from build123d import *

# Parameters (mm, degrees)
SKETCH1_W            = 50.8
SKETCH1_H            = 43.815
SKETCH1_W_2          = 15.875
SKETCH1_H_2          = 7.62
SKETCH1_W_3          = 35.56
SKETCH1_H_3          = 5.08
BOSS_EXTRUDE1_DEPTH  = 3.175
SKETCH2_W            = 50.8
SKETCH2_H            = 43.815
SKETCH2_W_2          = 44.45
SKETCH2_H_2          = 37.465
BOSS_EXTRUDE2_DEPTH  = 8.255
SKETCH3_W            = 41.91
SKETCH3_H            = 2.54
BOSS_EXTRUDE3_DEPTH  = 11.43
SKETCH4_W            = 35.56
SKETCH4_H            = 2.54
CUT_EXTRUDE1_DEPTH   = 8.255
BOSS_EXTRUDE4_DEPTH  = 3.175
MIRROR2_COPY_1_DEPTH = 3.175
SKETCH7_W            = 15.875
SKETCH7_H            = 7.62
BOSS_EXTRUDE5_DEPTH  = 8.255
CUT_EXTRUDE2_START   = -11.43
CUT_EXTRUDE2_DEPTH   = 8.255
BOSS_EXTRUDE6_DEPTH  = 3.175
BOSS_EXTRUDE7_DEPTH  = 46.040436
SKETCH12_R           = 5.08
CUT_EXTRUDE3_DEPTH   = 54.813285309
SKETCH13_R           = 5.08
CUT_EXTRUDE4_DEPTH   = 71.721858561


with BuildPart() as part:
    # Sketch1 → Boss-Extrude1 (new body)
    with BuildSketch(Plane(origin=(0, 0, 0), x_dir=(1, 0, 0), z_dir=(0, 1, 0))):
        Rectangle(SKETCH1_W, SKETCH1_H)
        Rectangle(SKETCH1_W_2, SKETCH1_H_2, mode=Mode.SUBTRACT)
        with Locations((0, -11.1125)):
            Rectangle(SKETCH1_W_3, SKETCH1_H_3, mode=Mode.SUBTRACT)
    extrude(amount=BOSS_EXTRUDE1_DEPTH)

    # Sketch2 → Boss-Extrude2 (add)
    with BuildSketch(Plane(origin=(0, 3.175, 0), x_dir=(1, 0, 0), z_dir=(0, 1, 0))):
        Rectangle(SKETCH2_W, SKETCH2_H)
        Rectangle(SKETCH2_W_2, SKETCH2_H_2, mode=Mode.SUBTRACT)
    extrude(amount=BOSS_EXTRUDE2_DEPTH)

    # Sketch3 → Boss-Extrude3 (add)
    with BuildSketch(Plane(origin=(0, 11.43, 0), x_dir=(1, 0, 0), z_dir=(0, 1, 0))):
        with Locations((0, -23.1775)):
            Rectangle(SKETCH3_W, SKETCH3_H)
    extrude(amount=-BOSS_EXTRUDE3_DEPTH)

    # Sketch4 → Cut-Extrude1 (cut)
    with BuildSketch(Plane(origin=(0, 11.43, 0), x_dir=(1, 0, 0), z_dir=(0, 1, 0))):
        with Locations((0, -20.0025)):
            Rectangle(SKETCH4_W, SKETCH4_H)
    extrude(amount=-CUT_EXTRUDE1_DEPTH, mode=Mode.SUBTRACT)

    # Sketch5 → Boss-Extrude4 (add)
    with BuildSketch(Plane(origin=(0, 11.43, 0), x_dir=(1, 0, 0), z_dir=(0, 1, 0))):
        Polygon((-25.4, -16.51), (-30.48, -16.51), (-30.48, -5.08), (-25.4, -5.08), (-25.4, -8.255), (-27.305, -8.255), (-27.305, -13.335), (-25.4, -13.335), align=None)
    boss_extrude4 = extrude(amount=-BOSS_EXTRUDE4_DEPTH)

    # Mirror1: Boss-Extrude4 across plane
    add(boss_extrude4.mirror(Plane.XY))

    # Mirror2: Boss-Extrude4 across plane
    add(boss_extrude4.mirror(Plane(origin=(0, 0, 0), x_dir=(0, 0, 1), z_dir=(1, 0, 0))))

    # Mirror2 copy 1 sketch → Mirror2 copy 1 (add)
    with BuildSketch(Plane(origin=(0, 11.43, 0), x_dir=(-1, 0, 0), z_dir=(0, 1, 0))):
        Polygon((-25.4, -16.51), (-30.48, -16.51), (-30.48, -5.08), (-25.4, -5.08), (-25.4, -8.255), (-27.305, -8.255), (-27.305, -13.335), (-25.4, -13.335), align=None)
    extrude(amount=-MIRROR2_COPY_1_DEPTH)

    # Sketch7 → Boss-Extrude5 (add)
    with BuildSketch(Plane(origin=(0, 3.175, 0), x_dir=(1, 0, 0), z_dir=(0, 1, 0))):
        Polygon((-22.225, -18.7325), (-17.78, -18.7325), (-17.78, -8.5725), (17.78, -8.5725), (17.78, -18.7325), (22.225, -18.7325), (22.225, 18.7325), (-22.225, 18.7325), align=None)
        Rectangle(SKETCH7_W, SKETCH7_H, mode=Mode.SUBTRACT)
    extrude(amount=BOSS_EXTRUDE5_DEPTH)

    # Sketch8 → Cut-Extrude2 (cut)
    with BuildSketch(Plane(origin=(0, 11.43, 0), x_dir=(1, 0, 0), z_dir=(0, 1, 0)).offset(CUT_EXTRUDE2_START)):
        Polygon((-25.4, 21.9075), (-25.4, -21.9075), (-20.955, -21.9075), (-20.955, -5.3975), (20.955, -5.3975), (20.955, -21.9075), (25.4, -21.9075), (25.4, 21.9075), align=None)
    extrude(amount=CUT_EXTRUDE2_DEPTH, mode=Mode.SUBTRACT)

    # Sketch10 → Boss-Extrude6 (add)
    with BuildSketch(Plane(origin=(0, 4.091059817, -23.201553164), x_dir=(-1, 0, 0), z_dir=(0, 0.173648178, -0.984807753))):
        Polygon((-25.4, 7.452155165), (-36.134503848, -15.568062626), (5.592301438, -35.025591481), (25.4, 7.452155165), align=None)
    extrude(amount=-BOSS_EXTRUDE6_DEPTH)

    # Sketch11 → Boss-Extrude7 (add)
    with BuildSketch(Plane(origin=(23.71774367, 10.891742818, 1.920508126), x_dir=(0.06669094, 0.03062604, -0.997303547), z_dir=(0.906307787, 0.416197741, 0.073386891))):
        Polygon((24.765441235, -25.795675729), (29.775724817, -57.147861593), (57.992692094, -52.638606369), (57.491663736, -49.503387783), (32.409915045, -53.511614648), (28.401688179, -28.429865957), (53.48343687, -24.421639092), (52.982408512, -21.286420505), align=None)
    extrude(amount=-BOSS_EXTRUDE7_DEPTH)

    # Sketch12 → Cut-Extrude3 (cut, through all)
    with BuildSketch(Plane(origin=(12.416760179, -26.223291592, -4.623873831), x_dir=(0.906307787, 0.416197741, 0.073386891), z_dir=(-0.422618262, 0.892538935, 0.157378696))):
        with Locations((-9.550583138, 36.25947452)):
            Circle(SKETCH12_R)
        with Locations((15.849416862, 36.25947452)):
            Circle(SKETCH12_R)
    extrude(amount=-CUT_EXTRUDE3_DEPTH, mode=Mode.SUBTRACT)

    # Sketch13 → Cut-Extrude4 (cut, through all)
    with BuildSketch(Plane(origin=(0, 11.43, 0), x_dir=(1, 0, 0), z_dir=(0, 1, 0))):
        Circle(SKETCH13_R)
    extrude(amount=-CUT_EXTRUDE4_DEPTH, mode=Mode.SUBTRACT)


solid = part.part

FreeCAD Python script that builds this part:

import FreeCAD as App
import Part
import Sketcher
from FreeCAD import Vector
Q = App.Units.Quantity

doc = App.newDocument("Part")
body = doc.addObject("PartDesign::Body", "Body")

# Sketch on XZ plane
sketch1 = body.newObject("Sketcher::SketchObject", "Sketch")
sketch1.AttachmentSupport = (doc.getObject("XZ_Plane"), [""])
sketch1.MapMode = "FlatFace"
sketch1.addGeometry([
    Part.LineSegment(Vector(-25.4, -21.9075, 0), Vector(-25.4, 21.9075, 0)),  # 0
    Part.LineSegment(Vector(-25.4, 21.9075, 0), Vector(25.4, 21.9075, 0)),  # 1
    Part.LineSegment(Vector(25.4, 21.9075, 0), Vector(25.4, -21.9075, 0)),  # 2
    Part.LineSegment(Vector(25.4, -21.9075, 0), Vector(-25.4, -21.9075, 0)),  # 3
    Part.LineSegment(Vector(17.78, 13.6525, 0), Vector(-17.78, 13.6525, 0)),  # 4
    Part.LineSegment(Vector(-17.78, 13.6525, 0), Vector(-17.78, 8.5725, 0)),  # 5
    Part.LineSegment(Vector(-17.78, 8.5725, 0), Vector(17.78, 8.5725, 0)),  # 6
    Part.LineSegment(Vector(17.78, 8.5725, 0), Vector(17.78, 13.6525, 0)),  # 7
    Part.LineSegment(Vector(7.9375, 3.81, 0), Vector(-7.9375, 3.81, 0)),  # 8
    Part.LineSegment(Vector(-7.9375, 3.81, 0), Vector(-7.9375, -3.81, 0)),  # 9
    Part.LineSegment(Vector(-7.9375, -3.81, 0), Vector(7.9375, -3.81, 0)),  # 10
    Part.LineSegment(Vector(7.9375, -3.81, 0), Vector(7.9375, 3.81, 0)),  # 11
], False)
sketch1.addConstraint([
    Sketcher.Constraint("Coincident", 0, 2, 1, 1),
    Sketcher.Constraint("Coincident", 1, 2, 2, 1),
    Sketcher.Constraint("Coincident", 2, 2, 3, 1),
    Sketcher.Constraint("Coincident", 3, 2, 0, 1),
    Sketcher.Constraint("Coincident", 4, 2, 5, 1),
    Sketcher.Constraint("Coincident", 5, 2, 6, 1),
    Sketcher.Constraint("Coincident", 6, 2, 7, 1),
    Sketcher.Constraint("Coincident", 7, 2, 4, 1),
    Sketcher.Constraint("Coincident", 8, 2, 9, 1),
    Sketcher.Constraint("Coincident", 9, 2, 10, 1),
    Sketcher.Constraint("Coincident", 10, 2, 11, 1),
    Sketcher.Constraint("Coincident", 11, 2, 8, 1),
    Sketcher.Constraint("Vertical", 0),
    Sketcher.Constraint("Horizontal", 1),
    Sketcher.Constraint("Vertical", 2),
    Sketcher.Constraint("Horizontal", 3),
    Sketcher.Constraint("Horizontal", 4),
    Sketcher.Constraint("Vertical", 5),
    Sketcher.Constraint("Horizontal", 6),
    Sketcher.Constraint("Vertical", 7),
    Sketcher.Constraint("Horizontal", 8),
    Sketcher.Constraint("Vertical", 9),
    Sketcher.Constraint("Horizontal", 10),
    Sketcher.Constraint("Vertical", 11),
    Sketcher.Constraint("Symmetric", 0, 2, 2, 2, -1, 1),
    Sketcher.Constraint("Symmetric", 8, 2, 10, 2, -1, 1),
    Sketcher.Constraint("DistanceX", 1, 1, 1, 2, Q("2 in")),
    Sketcher.Constraint("DistanceX", 4, 2, 4, 1, Q("1.4 in")),
    Sketcher.Constraint("DistanceY", 5, 2, 5, 1, Q("0.2 in")),
    Sketcher.Constraint("DistanceY", 9, 2, 9, 1, Q("0.3 in")),
    Sketcher.Constraint("DistanceX", 4, 2, -1, 1, Q("0.7 in")),
    Sketcher.Constraint("DistanceY", 3, 2, 4, 2, Q("1.4 in")),
    Sketcher.Constraint("DistanceX", 8, 2, 8, 1, Q("0.625 in")),
    Sketcher.Constraint("DistanceY", 0, 1, 0, 2, Q("1.725 in")),
])
pad1 = body.newObject("PartDesign::Pad", "Pad")
pad1.Profile = sketch1
pad1.Length = Q("0.125 in")
pad1.Reversed = True

# Sketch on XZ plane
sketch2 = body.newObject("Sketcher::SketchObject", "Sketch001")
sketch2.AttachmentSupport = (doc.getObject("XZ_Plane"), [""])
sketch2.MapMode = "FlatFace"
sketch2.AttachmentOffset = App.Placement(Vector(0, 0, -0.125 * 25.4), App.Rotation())
sketch2.addGeometry([
    Part.LineSegment(Vector(-25.4, -21.9075, 0), Vector(-25.4, 21.9075, 0)),  # 0
    Part.LineSegment(Vector(-25.4, 21.9075, 0), Vector(25.4, 21.9075, 0)),  # 1
    Part.LineSegment(Vector(25.4, 21.9075, 0), Vector(25.4, -21.9075, 0)),  # 2
    Part.LineSegment(Vector(25.4, -21.9075, 0), Vector(-25.4, -21.9075, 0)),  # 3
    Part.LineSegment(Vector(22.225, 18.7325, 0), Vector(-22.225, 18.7325, 0)),  # 4
    Part.LineSegment(Vector(-22.225, 18.7325, 0), Vector(-22.225, -18.7325, 0)),  # 5
    Part.LineSegment(Vector(-22.225, -18.7325, 0), Vector(22.225, -18.7325, 0)),  # 6
    Part.LineSegment(Vector(22.225, -18.7325, 0), Vector(22.225, 18.7325, 0)),  # 7
], False)
sketch2.addConstraint([
    Sketcher.Constraint("Coincident", 0, 2, 1, 1),
    Sketcher.Constraint("Coincident", 1, 2, 2, 1),
    Sketcher.Constraint("Coincident", 2, 2, 3, 1),
    Sketcher.Constraint("Coincident", 3, 2, 0, 1),
    Sketcher.Constraint("Coincident", 4, 2, 5, 1),
    Sketcher.Constraint("Coincident", 5, 2, 6, 1),
    Sketcher.Constraint("Coincident", 6, 2, 7, 1),
    Sketcher.Constraint("Coincident", 7, 2, 4, 1),
    Sketcher.Constraint("Vertical", 0),
    Sketcher.Constraint("Horizontal", 1),
    Sketcher.Constraint("Vertical", 2),
    Sketcher.Constraint("Horizontal", 3),
    Sketcher.Constraint("Horizontal", 4),
    Sketcher.Constraint("Vertical", 5),
    Sketcher.Constraint("Horizontal", 6),
    Sketcher.Constraint("Vertical", 7),
    Sketcher.Constraint("Symmetric", 0, 2, 2, 2, -1, 1),
    Sketcher.Constraint("Symmetric", 4, 2, 6, 2, -1, 1),
    Sketcher.Constraint("DistanceX", 1, 1, 1, 2, Q("2 in")),
    Sketcher.Constraint("DistanceX", 4, 2, 4, 1, Q("1.75 in")),
    Sketcher.Constraint("DistanceY", 3, 2, 4, 2, Q("1.6 in")),
    Sketcher.Constraint("DistanceY", 0, 1, 0, 2, Q("1.725 in")),
])
pad2 = body.newObject("PartDesign::Pad", "Pad001")
pad2.Profile = sketch2
pad2.Length = Q("0.325 in")
pad2.Reversed = True

# Sketch on XZ plane
sketch3 = body.newObject("Sketcher::SketchObject", "Sketch002")
sketch3.AttachmentSupport = (doc.getObject("XZ_Plane"), [""])
sketch3.MapMode = "FlatFace"
sketch3.AttachmentOffset = App.Placement(Vector(0, 0, -0.45 * 25.4), App.Rotation())
sketch3.addGeometry([
    Part.LineSegment(Vector(-20.955, 21.9075, 0), Vector(-20.955, 24.4475, 0)),
    Part.LineSegment(Vector(-20.955, 24.4475, 0), Vector(20.955, 24.4475, 0)),
    Part.LineSegment(Vector(20.955, 24.4475, 0), Vector(20.955, 21.9075, 0)),
    Part.LineSegment(Vector(20.955, 21.9075, 0), Vector(-20.955, 21.9075, 0)),
], False)
sketch3.addConstraint([
    Sketcher.Constraint("Coincident", 0, 2, 1, 1),
    Sketcher.Constraint("Coincident", 1, 2, 2, 1),
    Sketcher.Constraint("Coincident", 2, 2, 3, 1),
    Sketcher.Constraint("Coincident", 3, 2, 0, 1),
    Sketcher.Constraint("Vertical", 0),
    Sketcher.Constraint("Horizontal", 1),
    Sketcher.Constraint("Vertical", 2),
    Sketcher.Constraint("Horizontal", 3),
    Sketcher.Constraint("DistanceY", 0, 1, 0, 2, Q("0.1 in")),
    Sketcher.Constraint("DistanceX", 1, 1, 1, 2, Q("1.65 in")),
    Sketcher.Constraint("DistanceX", 0, 2, -1, 1, Q("0.825 in")),
    Sketcher.Constraint("DistanceY", -1, 1, 0, 2, Q("0.9625 in")),
])
pad3 = body.newObject("PartDesign::Pad", "Pad002")
pad3.Profile = sketch3
pad3.Length = Q("0.45 in")

# Sketch on XZ plane
sketch4 = body.newObject("Sketcher::SketchObject", "Sketch003")
sketch4.AttachmentSupport = (doc.getObject("XZ_Plane"), [""])
sketch4.MapMode = "FlatFace"
sketch4.AttachmentOffset = App.Placement(Vector(0, 0, -0.45 * 25.4), App.Rotation())
sketch4.addGeometry([
    Part.LineSegment(Vector(-17.78, 18.7325, 0), Vector(-17.78, 21.2725, 0)),
    Part.LineSegment(Vector(-17.78, 21.2725, 0), Vector(17.78, 21.2725, 0)),
    Part.LineSegment(Vector(17.78, 21.2725, 0), Vector(17.78, 18.7325, 0)),
    Part.LineSegment(Vector(17.78, 18.7325, 0), Vector(-17.78, 18.7325, 0)),
], False)
sketch4.addConstraint([
    Sketcher.Constraint("Coincident", 0, 2, 1, 1),
    Sketcher.Constraint("Coincident", 1, 2, 2, 1),
    Sketcher.Constraint("Coincident", 2, 2, 3, 1),
    Sketcher.Constraint("Coincident", 3, 2, 0, 1),
    Sketcher.Constraint("Vertical", 0),
    Sketcher.Constraint("Horizontal", 1),
    Sketcher.Constraint("Vertical", 2),
    Sketcher.Constraint("Horizontal", 3),
    Sketcher.Constraint("DistanceX", 1, 1, 1, 2, Q("1.4 in")),
    Sketcher.Constraint("DistanceY", 0, 1, 0, 2, Q("0.1 in")),
    Sketcher.Constraint("DistanceX", 0, 2, -1, 1, Q("0.7 in")),
    Sketcher.Constraint("DistanceY", -1, 1, 0, 2, Q("0.8375 in")),
])
pocket1 = body.newObject("PartDesign::Pocket", "Pocket")
pocket1.Profile = sketch4
pocket1.Length = Q("0.325 in")
pocket1.Reversed = True

# Sketch on XZ plane
sketch5 = body.newObject("Sketcher::SketchObject", "Sketch004")
sketch5.AttachmentSupport = (doc.getObject("XZ_Plane"), [""])
sketch5.MapMode = "FlatFace"
sketch5.AttachmentOffset = App.Placement(Vector(0, 0, -0.45 * 25.4), App.Rotation())
sketch5.addGeometry([
    Part.LineSegment(Vector(-30.48, 16.51, 0), Vector(-25.4, 16.51, 0)),  # 0
    Part.LineSegment(Vector(-25.4, 16.51, 0), Vector(-25.4, 13.335, 0)),  # 1
    Part.LineSegment(Vector(-25.4, 13.335, 0), Vector(-27.305, 13.335, 0)),  # 2
    Part.LineSegment(Vector(-27.305, 13.335, 0), Vector(-27.305, 8.255, 0)),  # 3
    Part.LineSegment(Vector(-27.305, 8.255, 0), Vector(-25.4, 8.255, 0)),  # 4
    Part.LineSegment(Vector(-25.4, 8.255, 0), Vector(-25.4, 5.08, 0)),  # 5
    Part.LineSegment(Vector(-25.4, 5.08, 0), Vector(-30.48, 5.08, 0)),  # 6
    Part.LineSegment(Vector(-30.48, 5.08, 0), Vector(-30.48, 16.51, 0)),  # 7
], False)
sketch5.addConstraint([
    Sketcher.Constraint("Coincident", 0, 2, 1, 1),
    Sketcher.Constraint("Coincident", 1, 2, 2, 1),
    Sketcher.Constraint("Coincident", 2, 2, 3, 1),
    Sketcher.Constraint("Coincident", 3, 2, 4, 1),
    Sketcher.Constraint("Coincident", 4, 2, 5, 1),
    Sketcher.Constraint("Coincident", 5, 2, 6, 1),
    Sketcher.Constraint("Coincident", 6, 2, 7, 1),
    Sketcher.Constraint("Coincident", 7, 2, 0, 1),
    Sketcher.Constraint("Horizontal", 0),
    Sketcher.Constraint("Vertical", 1),
    Sketcher.Constraint("Horizontal", 2),
    Sketcher.Constraint("Vertical", 3),
    Sketcher.Constraint("Horizontal", 4),
    Sketcher.Constraint("Vertical", 5),
    Sketcher.Constraint("Horizontal", 6),
    Sketcher.Constraint("Vertical", 7),
    Sketcher.Constraint("Vertical", 1, 2, 4, 2),
    Sketcher.Constraint("Equal", 6, 3),
    Sketcher.Constraint("Equal", 1, 5),
    Sketcher.Constraint("DistanceX", 0, 1, 0, 2, Q("0.2 in")),
    Sketcher.Constraint("DistanceX", 0, 2, -1, 1, Q("1 in")),
    Sketcher.Constraint("DistanceY", 7, 1, 7, 2, Q("0.45 in")),
    Sketcher.Constraint("DistanceY", -1, 1, 5, 2, Q("0.2 in")),
    Sketcher.Constraint("DistanceX", 2, 2, 2, 1, Q("0.075 in")),
])
pad4 = body.newObject("PartDesign::Pad", "Pad003")
pad4.Profile = sketch5
pad4.Length = Q("0.125 in")
doc.recompute()

mirrored = body.newObject("PartDesign::Mirrored", "Mirrored")
mirrored.Originals = [pad4]
mirrored.MirrorPlane = (doc.getObject("XY_Plane"), [""])
body.Tip = mirrored
doc.recompute()

mirrored2 = body.newObject("PartDesign::Mirrored", "Mirrored001")
mirrored2.Originals = [pad4]
mirrored2.MirrorPlane = (doc.getObject("YZ_Plane"), [""])
body.Tip = mirrored2

# Sketch on XZ plane
sketch6 = body.newObject("Sketcher::SketchObject", "Sketch005")
sketch6.AttachmentSupport = (doc.getObject("XZ_Plane"), [""])
sketch6.MapMode = "FlatFace"
sketch6.AttachmentOffset = App.Placement(Vector(0, 0, -0.45 * 25.4), App.Rotation())
sketch6.addGeometry([
    Part.LineSegment(Vector(30.48, -16.51, 0), Vector(25.4, -16.51, 0)),  # 0
    Part.LineSegment(Vector(25.4, -16.51, 0), Vector(25.4, -13.335, 0)),  # 1
    Part.LineSegment(Vector(25.4, -13.335, 0), Vector(27.305, -13.335, 0)),  # 2
    Part.LineSegment(Vector(27.305, -13.335, 0), Vector(27.305, -8.255, 0)),  # 3
    Part.LineSegment(Vector(27.305, -8.255, 0), Vector(25.4, -8.255, 0)),  # 4
    Part.LineSegment(Vector(25.4, -8.255, 0), Vector(25.4, -5.08, 0)),  # 5
    Part.LineSegment(Vector(25.4, -5.08, 0), Vector(30.48, -5.08, 0)),  # 6
    Part.LineSegment(Vector(30.48, -5.08, 0), Vector(30.48, -16.51, 0)),  # 7
], False)
sketch6.addConstraint([
    Sketcher.Constraint("Coincident", 0, 2, 1, 1),
    Sketcher.Constraint("Coincident", 1, 2, 2, 1),
    Sketcher.Constraint("Coincident", 2, 2, 3, 1),
    Sketcher.Constraint("Coincident", 3, 2, 4, 1),
    Sketcher.Constraint("Coincident", 4, 2, 5, 1),
    Sketcher.Constraint("Coincident", 5, 2, 6, 1),
    Sketcher.Constraint("Coincident", 6, 2, 7, 1),
    Sketcher.Constraint("Coincident", 7, 2, 0, 1),
    Sketcher.Constraint("Horizontal", 0),
    Sketcher.Constraint("Vertical", 1),
    Sketcher.Constraint("Horizontal", 2),
    Sketcher.Constraint("Vertical", 3),
    Sketcher.Constraint("Horizontal", 4),
    Sketcher.Constraint("Vertical", 5),
    Sketcher.Constraint("Horizontal", 6),
    Sketcher.Constraint("Vertical", 7),
    Sketcher.Constraint("Vertical", 1, 2, 4, 2),
    Sketcher.Constraint("Equal", 6, 3),
    Sketcher.Constraint("Equal", 1, 5),
    Sketcher.Constraint("DistanceX", 0, 2, 0, 1, Q("0.2 in")),
    Sketcher.Constraint("DistanceX", -1, 1, 0, 2, Q("1 in")),
    Sketcher.Constraint("DistanceY", 7, 2, 7, 1, Q("0.45 in")),
    Sketcher.Constraint("DistanceY", 5, 2, -1, 1, Q("0.2 in")),
    Sketcher.Constraint("DistanceX", 2, 1, 2, 2, Q("0.075 in")),
])
pad5 = body.newObject("PartDesign::Pad", "Pad004")
pad5.Profile = sketch6
pad5.Length = Q("0.125 in")

# Sketch on XZ plane
sketch7 = body.newObject("Sketcher::SketchObject", "Sketch006")
sketch7.AttachmentSupport = (doc.getObject("XZ_Plane"), [""])
sketch7.MapMode = "FlatFace"
sketch7.AttachmentOffset = App.Placement(Vector(0, 0, -0.125 * 25.4), App.Rotation())
sketch7.addGeometry([
    Part.LineSegment(Vector(-22.225, 18.7325, 0), Vector(-17.78, 18.7325, 0)),  # 0
    Part.LineSegment(Vector(-17.78, 18.7325, 0), Vector(-17.78, 8.5725, 0)),  # 1
    Part.LineSegment(Vector(-17.78, 8.5725, 0), Vector(17.78, 8.5725, 0)),  # 2
    Part.LineSegment(Vector(17.78, 8.5725, 0), Vector(17.78, 18.7325, 0)),  # 3
    Part.LineSegment(Vector(17.78, 18.7325, 0), Vector(22.225, 18.7325, 0)),  # 4
    Part.LineSegment(Vector(22.225, 18.7325, 0), Vector(22.225, -18.7325, 0)),  # 5
    Part.LineSegment(Vector(22.225, -18.7325, 0), Vector(-22.225, -18.7325, 0)),  # 6
    Part.LineSegment(Vector(-22.225, -18.7325, 0), Vector(-22.225, 18.7325, 0)),  # 7
    Part.LineSegment(Vector(7.9375, 3.81, 0), Vector(-7.9375, 3.81, 0)),  # 8
    Part.LineSegment(Vector(-7.9375, 3.81, 0), Vector(-7.9375, -3.81, 0)),  # 9
    Part.LineSegment(Vector(-7.9375, -3.81, 0), Vector(7.9375, -3.81, 0)),  # 10
    Part.LineSegment(Vector(7.9375, -3.81, 0), Vector(7.9375, 3.81, 0)),  # 11
], False)
sketch7.addConstraint([
    Sketcher.Constraint("Coincident", 0, 2, 1, 1),
    Sketcher.Constraint("Coincident", 1, 2, 2, 1),
    Sketcher.Constraint("Coincident", 2, 2, 3, 1),
    Sketcher.Constraint("Coincident", 3, 2, 4, 1),
    Sketcher.Constraint("Coincident", 4, 2, 5, 1),
    Sketcher.Constraint("Coincident", 5, 2, 6, 1),
    Sketcher.Constraint("Coincident", 6, 2, 7, 1),
    Sketcher.Constraint("Coincident", 7, 2, 0, 1),
    Sketcher.Constraint("Coincident", 8, 2, 9, 1),
    Sketcher.Constraint("Coincident", 9, 2, 10, 1),
    Sketcher.Constraint("Coincident", 10, 2, 11, 1),
    Sketcher.Constraint("Coincident", 11, 2, 8, 1),
    Sketcher.Constraint("Horizontal", 0),
    Sketcher.Constraint("Vertical", 1),
    Sketcher.Constraint("Horizontal", 2),
    Sketcher.Constraint("Vertical", 3),
    Sketcher.Constraint("Horizontal", 4),
    Sketcher.Constraint("Vertical", 5),
    Sketcher.Constraint("Horizontal", 6),
    Sketcher.Constraint("Vertical", 7),
    Sketcher.Constraint("Horizontal", 8),
    Sketcher.Constraint("Vertical", 9),
    Sketcher.Constraint("Horizontal", 10),
    Sketcher.Constraint("Vertical", 11),
    Sketcher.Constraint("Symmetric", 4, 2, 6, 2, -1, 1),
    Sketcher.Constraint("Symmetric", 8, 2, 10, 2, -1, 1),
    Sketcher.Constraint("Symmetric", 0, 2, 3, 2, -2),
    Sketcher.Constraint("DistanceX", 2, 1, 2, 2, Q("1.4 in")),
    Sketcher.Constraint("DistanceY", 1, 2, 1, 1, Q("0.4 in")),
    Sketcher.Constraint("DistanceY", 9, 2, 9, 1, Q("0.3 in")),
    Sketcher.Constraint("DistanceX", 6, 2, 6, 1, Q("1.75 in")),
    Sketcher.Constraint("DistanceX", 8, 2, 8, 1, Q("0.625 in")),
    Sketcher.Constraint("DistanceY", 5, 2, 5, 1, Q("1.475 in")),
])
pad6 = body.newObject("PartDesign::Pad", "Pad005")
pad6.Profile = sketch7
pad6.Length = Q("0.325 in")
pad6.Reversed = True

# Sketch on XZ plane
sketch8 = body.newObject("Sketcher::SketchObject", "Sketch007")
sketch8.AttachmentSupport = (doc.getObject("XZ_Plane"), [""])
sketch8.MapMode = "FlatFace"
sketch8.addGeometry([
    Part.LineSegment(Vector(-25.4, -21.9075, 0), Vector(-25.4, 21.9075, 0)),  # 0
    Part.LineSegment(Vector(-25.4, 21.9075, 0), Vector(-20.955, 21.9075, 0)),  # 1
    Part.LineSegment(Vector(-20.955, 21.9075, 0), Vector(-20.955, 5.3975, 0)),  # 2
    Part.LineSegment(Vector(-20.955, 5.3975, 0), Vector(20.955, 5.3975, 0)),  # 3
    Part.LineSegment(Vector(20.955, 5.3975, 0), Vector(20.955, 21.9075, 0)),  # 4
    Part.LineSegment(Vector(20.955, 21.9075, 0), Vector(25.4, 21.9075, 0)),  # 5
    Part.LineSegment(Vector(25.4, 21.9075, 0), Vector(25.4, -21.9075, 0)),  # 6
    Part.LineSegment(Vector(25.4, -21.9075, 0), Vector(-25.4, -21.9075, 0)),  # 7
], False)
sketch8.addConstraint([
    Sketcher.Constraint("Coincident", 0, 2, 1, 1),
    Sketcher.Constraint("Coincident", 1, 2, 2, 1),
    Sketcher.Constraint("Coincident", 2, 2, 3, 1),
    Sketcher.Constraint("Coincident", 3, 2, 4, 1),
    Sketcher.Constraint("Coincident", 4, 2, 5, 1),
    Sketcher.Constraint("Coincident", 5, 2, 6, 1),
    Sketcher.Constraint("Coincident", 6, 2, 7, 1),
    Sketcher.Constraint("Coincident", 7, 2, 0, 1),
    Sketcher.Constraint("Vertical", 0),
    Sketcher.Constraint("Horizontal", 1),
    Sketcher.Constraint("Vertical", 2),
    Sketcher.Constraint("Horizontal", 3),
    Sketcher.Constraint("Vertical", 4),
    Sketcher.Constraint("Horizontal", 5),
    Sketcher.Constraint("Vertical", 6),
    Sketcher.Constraint("Horizontal", 7),
    Sketcher.Constraint("Symmetric", 0, 2, 6, 2, -1, 1),
    Sketcher.Constraint("Symmetric", 1, 2, 4, 2, -2),
    Sketcher.Constraint("DistanceX", 7, 2, 7, 1, Q("2 in")),
    Sketcher.Constraint("DistanceX", 3, 1, 3, 2, Q("1.65 in")),
    Sketcher.Constraint("DistanceY", 2, 2, 2, 1, Q("0.65 in")),
    Sketcher.Constraint("DistanceY", 0, 1, 0, 2, Q("1.725 in")),
])
pocket2 = body.newObject("PartDesign::Pocket", "Pocket001")
pocket2.Profile = sketch8
pocket2.Length = Q("0.325 in")

# Sketch on an angled plane
sketch9 = body.newObject("Sketcher::SketchObject", "Sketch008")
sketch9.Placement = App.Placement(Vector(0, 4.09106, -23.201553), App.Rotation(Vector(-1, 0, 0), Vector(0, 0.984807753, 0.173648178), Vector(0, 0.173648178, -0.984807753), "ZXY"))
sketch9.addGeometry([
    Part.LineSegment(Vector(-25.4, 7.452155, 0), Vector(-36.134504, -15.568063, 0)),
    Part.LineSegment(Vector(-36.134504, -15.568063, 0), Vector(5.592301, -35.025591, 0)),
    Part.LineSegment(Vector(5.592301, -35.025591, 0), Vector(25.4, 7.452155, 0)),
    Part.LineSegment(Vector(25.4, 7.452155, 0), Vector(-25.4, 7.452155, 0)),
], False)
sketch9.addConstraint([
    Sketcher.Constraint("Coincident", 0, 2, 1, 1),
    Sketcher.Constraint("Coincident", 1, 2, 2, 1),
    Sketcher.Constraint("Coincident", 2, 2, 3, 1),
    Sketcher.Constraint("Coincident", 3, 2, 0, 1),
    Sketcher.Constraint("Horizontal", 3),
    Sketcher.Constraint("Perpendicular", 0, 1),
    Sketcher.Constraint("Perpendicular", 1, 2),
    Sketcher.Constraint("DistanceX", 3, 2, 3, 1, Q("2 in")),
    Sketcher.Constraint("Distance", 0, Q("1 in")),
    Sketcher.Constraint("DistanceX", -1, 1, 2, 2, Q("1 in")),
    Sketcher.Constraint("Angle", 0, Q("-115 deg")),
    Sketcher.Constraint("DistanceY", 1, 2, -1, 1, 35.025591),
])
pad7 = body.newObject("PartDesign::Pad", "Pad006")
pad7.Profile = sketch9
pad7.Length = Q("0.125 in")
pad7.Reversed = True

# Sketch on an angled plane
sketch10 = body.newObject("Sketcher::SketchObject", "Sketch009")
sketch10.Placement = App.Placement(Vector(23.717744, 10.891743, 1.920508), App.Rotation(Vector(0.06669094, 0.03062604, -0.997303547), Vector(-0.417323033, 0.908758211, 0), Vector(0.906307787, 0.416197741, 0.073386891), "ZXY"))
sketch10.addGeometry([
    Part.LineSegment(Vector(24.765441, -25.795676, 0), Vector(29.775725, -57.147862, 0)),  # 0
    Part.LineSegment(Vector(29.775725, -57.147862, 0), Vector(57.992692, -52.638606, 0)),  # 1
    Part.LineSegment(Vector(57.992692, -52.638606, 0), Vector(57.491664, -49.503388, 0)),  # 2
    Part.LineSegment(Vector(57.491664, -49.503388, 0), Vector(32.409915, -53.511615, 0)),  # 3
    Part.LineSegment(Vector(32.409915, -53.511615, 0), Vector(28.401688, -28.429866, 0)),  # 4
    Part.LineSegment(Vector(28.401688, -28.429866, 0), Vector(53.483437, -24.421639, 0)),  # 5
    Part.LineSegment(Vector(53.483437, -24.421639, 0), Vector(52.982409, -21.286421, 0)),  # 6
    Part.LineSegment(Vector(52.982409, -21.286421, 0), Vector(24.765441, -25.795676, 0)),  # 7
], False)
sketch10.addConstraint([
    Sketcher.Constraint("Coincident", 0, 2, 1, 1),
    Sketcher.Constraint("Coincident", 1, 2, 2, 1),
    Sketcher.Constraint("Coincident", 2, 2, 3, 1),
    Sketcher.Constraint("Coincident", 3, 2, 4, 1),
    Sketcher.Constraint("Coincident", 4, 2, 5, 1),
    Sketcher.Constraint("Coincident", 5, 2, 6, 1),
    Sketcher.Constraint("Coincident", 6, 2, 7, 1),
    Sketcher.Constraint("Coincident", 7, 2, 0, 1),
    Sketcher.Constraint("Perpendicular", 0, 1),
    Sketcher.Constraint("Perpendicular", 1, 2),
    Sketcher.Constraint("Perpendicular", 2, 3),
    Sketcher.Constraint("Perpendicular", 3, 4),
    Sketcher.Constraint("Perpendicular", 4, 5),
    Sketcher.Constraint("Perpendicular", 5, 6),
    Sketcher.Constraint("Perpendicular", 6, 7),
    Sketcher.Constraint("Equal", 3, 4),
    Sketcher.Constraint("Equal", 4, 5),
    Sketcher.Constraint("Equal", 2, 6),
    Sketcher.Constraint("Distance", 3, Q("1 in")),
    Sketcher.Constraint("Distance", 0, Q("1.25 in")),
    Sketcher.Constraint("Distance", 1, Q("1.125 in")),
    Sketcher.Constraint("DistanceX", 4, 2, 1, 2, Q("1.1650002 in")),
    Sketcher.Constraint("DistanceY", 0, 2, -1, 1, 57.147862),
    Sketcher.Constraint("DistanceX", -1, 1, 4, 2, 28.401688),
])
pad8 = body.newObject("PartDesign::Pad", "Pad007")
pad8.Profile = sketch10
pad8.Length = 46.040436
pad8.Reversed = True

# Sketch on an angled plane
sketch11 = body.newObject("Sketcher::SketchObject", "Sketch010")
sketch11.Placement = App.Placement(Vector(12.41676, -26.223292, -4.623874), App.Rotation(Vector(0.906307787, 0.416197741, 0.073386891), Vector(0, 0.173648178, -0.984807753), Vector(-0.422618262, 0.892538935, 0.157378696), "ZXY"))
sketch11.addGeometry([
    Part.Circle(Vector(-9.550583, 36.259475, 0), Vector(0, 0, 1), 5.08),
    Part.Circle(Vector(15.849417, 36.259475, 0), Vector(0, 0, 1), 5.08),
], False)
sketch11.addConstraint([
    Sketcher.Constraint("Equal", 0, 1),
    Sketcher.Constraint("Horizontal", 0, 3, 1, 3),
    Sketcher.Constraint("Diameter", 0, Q("0.4 in")),
    Sketcher.Constraint("DistanceX", 0, 3, 1, 3, Q("1 in")),
    Sketcher.Constraint("DistanceX", 0, 3, -1, 1, 9.550583),
    Sketcher.Constraint("DistanceY", -1, 1, 0, 3, 36.259475),
])
pocket3 = body.newObject("PartDesign::Pocket", "Pocket002")
pocket3.Profile = sketch11
pocket3.Type = "ThroughAll"

# Sketch on XZ plane
sketch12 = body.newObject("Sketcher::SketchObject", "Sketch011")
sketch12.AttachmentSupport = (doc.getObject("XZ_Plane"), [""])
sketch12.MapMode = "FlatFace"
sketch12.AttachmentOffset = App.Placement(Vector(0, 0, -0.45 * 25.4), App.Rotation())
sketch12.addGeometry(Part.Circle(Vector(0, 0, 0), Vector(0, 0, 1), 5.08), False)
sketch12.addConstraint([
    Sketcher.Constraint("Coincident", 0, 3, -1, 1),
    Sketcher.Constraint("Diameter", 0, Q("0.4 in")),
])
pocket4 = body.newObject("PartDesign::Pocket", "Pocket003")
pocket4.Profile = sketch12
pocket4.Type = "ThroughAll"
pocket4.Reversed = True

doc.recompute()
